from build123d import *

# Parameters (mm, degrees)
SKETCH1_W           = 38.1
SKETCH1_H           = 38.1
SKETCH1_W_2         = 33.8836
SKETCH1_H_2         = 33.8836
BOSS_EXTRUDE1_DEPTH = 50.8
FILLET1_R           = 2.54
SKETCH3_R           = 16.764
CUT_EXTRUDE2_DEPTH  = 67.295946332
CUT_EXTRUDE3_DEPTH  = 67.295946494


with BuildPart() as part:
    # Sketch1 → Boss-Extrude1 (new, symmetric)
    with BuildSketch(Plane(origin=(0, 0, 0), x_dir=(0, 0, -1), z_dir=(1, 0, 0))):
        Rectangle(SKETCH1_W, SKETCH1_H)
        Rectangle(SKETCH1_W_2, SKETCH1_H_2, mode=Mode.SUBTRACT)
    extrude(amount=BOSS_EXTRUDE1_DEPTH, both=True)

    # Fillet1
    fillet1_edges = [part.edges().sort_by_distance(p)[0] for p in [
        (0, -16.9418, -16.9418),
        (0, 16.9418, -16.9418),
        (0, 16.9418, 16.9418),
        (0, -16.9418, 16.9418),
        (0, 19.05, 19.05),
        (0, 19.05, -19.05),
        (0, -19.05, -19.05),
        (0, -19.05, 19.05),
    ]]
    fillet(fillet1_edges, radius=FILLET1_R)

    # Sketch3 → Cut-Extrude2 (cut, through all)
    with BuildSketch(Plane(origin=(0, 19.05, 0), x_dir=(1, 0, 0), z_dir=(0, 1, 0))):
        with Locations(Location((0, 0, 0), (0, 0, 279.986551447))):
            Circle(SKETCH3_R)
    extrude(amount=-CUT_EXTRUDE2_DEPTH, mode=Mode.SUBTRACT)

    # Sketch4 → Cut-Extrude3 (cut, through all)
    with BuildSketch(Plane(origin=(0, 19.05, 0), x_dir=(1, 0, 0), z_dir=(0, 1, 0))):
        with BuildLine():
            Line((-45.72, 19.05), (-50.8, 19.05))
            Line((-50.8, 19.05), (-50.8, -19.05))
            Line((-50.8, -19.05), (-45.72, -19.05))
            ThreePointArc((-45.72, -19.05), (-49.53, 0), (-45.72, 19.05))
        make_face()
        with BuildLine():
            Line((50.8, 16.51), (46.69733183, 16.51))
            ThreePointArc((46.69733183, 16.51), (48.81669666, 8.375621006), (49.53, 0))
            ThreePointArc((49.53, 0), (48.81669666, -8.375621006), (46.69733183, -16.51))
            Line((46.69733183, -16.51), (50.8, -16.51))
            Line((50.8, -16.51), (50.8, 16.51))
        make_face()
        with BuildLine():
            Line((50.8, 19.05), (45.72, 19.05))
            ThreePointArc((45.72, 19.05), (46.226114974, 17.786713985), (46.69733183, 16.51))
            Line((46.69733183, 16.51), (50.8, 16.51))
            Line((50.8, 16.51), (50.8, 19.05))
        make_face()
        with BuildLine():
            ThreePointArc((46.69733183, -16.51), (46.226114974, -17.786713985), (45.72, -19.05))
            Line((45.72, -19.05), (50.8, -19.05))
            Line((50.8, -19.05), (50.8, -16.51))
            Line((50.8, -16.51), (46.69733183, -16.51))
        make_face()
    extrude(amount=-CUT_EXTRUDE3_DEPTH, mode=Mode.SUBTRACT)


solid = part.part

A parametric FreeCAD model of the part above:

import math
import FreeCAD as App
import Part
import Sketcher
Q = App.Units.Quantity


def edges_at(feature, points):
    """Names of the edges that pass closest to the given points."""
    edges = feature.Shape.Edges
    near = lambda p: min(range(len(edges)), key=lambda i: edges[i].distToShape(Part.Vertex(*p))[0])
    return sorted({f"Edge{near(p) + 1}" for p in points})

doc = App.newDocument("Part")
body = doc.addObject("PartDesign::Body", "Body")

# Sketch on YZ plane
sketch1 = body.newObject("Sketcher::SketchObject", "Sketch")
sketch1.AttachmentSupport = (doc.getObject("YZ_Plane"), [""])
sketch1.MapMode = "FlatFace"
sketch1.addGeometry(Part.LineSegment(App.Vector(19, 19, 0), App.Vector(-19, 19, 0)), False)
sketch1.addGeometry(Part.LineSegment(App.Vector(-19, 19, 0), App.Vector(-19, -19, 0)), False)
sketch1.addGeometry(Part.LineSegment(App.Vector(-19, -19, 0), App.Vector(19, -19, 0)), False)
sketch1.addGeometry(Part.LineSegment(App.Vector(19, -19, 0), App.Vector(19, 19, 0)), False)
sketch1.addGeometry(Part.LineSegment(App.Vector(-17, -17, 0), App.Vector(-17, 17, 0)), False)
sketch1.addGeometry(Part.LineSegment(App.Vector(-17, 17, 0), App.Vector(17, 17, 0)), False)
sketch1.addGeometry(Part.LineSegment(App.Vector(17, 17, 0), App.Vector(17, -17, 0)), False)
sketch1.addGeometry(Part.LineSegment(App.Vector(17, -17, 0), App.Vector(-17, -17, 0)), False)
sketch1.addConstraint(Sketcher.Constraint("Coincident", 0, 2, 1, 1))
sketch1.addConstraint(Sketcher.Constraint("Coincident", 1, 2, 2, 1))
sketch1.addConstraint(Sketcher.Constraint("Coincident", 2, 2, 3, 1))
sketch1.addConstraint(Sketcher.Constraint("Coincident", 3, 2, 0, 1))
sketch1.addConstraint(Sketcher.Constraint("Coincident", 4, 2, 5, 1))
sketch1.addConstraint(Sketcher.Constraint("Coincident", 5, 2, 6, 1))
sketch1.addConstraint(Sketcher.Constraint("Coincident", 6, 2, 7, 1))
sketch1.addConstraint(Sketcher.Constraint("Coincident", 7, 2, 4, 1))
sketch1.addConstraint(Sketcher.Constraint("Horizontal", 0))
sketch1.addConstraint(Sketcher.Constraint("Vertical", 1))
sketch1.addConstraint(Sketcher.Constraint("Horizontal", 2))
sketch1.addConstraint(Sketcher.Constraint("Vertical", 3))
sketch1.addConstraint(Sketcher.Constraint("Vertical", 4))
sketch1.addConstraint(Sketcher.Constraint("Horizontal", 5))
sketch1.addConstraint(Sketcher.Constraint("Vertical", 6))
sketch1.addConstraint(Sketcher.Constraint("Horizontal", 7))
sketch1.addConstraint(Sketcher.Constraint("Symmetric", 0, 2, 2, 2, -1, 1))
sketch1.addConstraint(Sketcher.Constraint("Symmetric", 4, 2, 6, 2, -1, 1))
sketch1.addConstraint(Sketcher.Constraint("Equal", 2, 1))
sketch1.addConstraint(Sketcher.Constraint("Equal", 7, 4))
sketch1.addConstraint(Sketcher.Constraint("DistanceX", 0, 2, 0, 1, Q("1.5 in")))
sketch1.addConstraint(Sketcher.Constraint("DistanceX", 5, 1, 5, 2, Q("1.334 in")))
pad1 = body.newObject("PartDesign::Pad", "Pad")
pad1.Profile = sketch1
pad1.Length = Q("4 in")
pad1.Midplane = True
doc.recompute()

fillet = body.newObject("PartDesign::Fillet", "Fillet")
fillet.Base = (pad1, edges_at(pad1, [
    (0, -16.942, -16.942),
    (0, 16.942, -16.942),
    (0, 16.942, 16.942),
    (0, -16.942, 16.942),
    (0, 19.05, 19.05),
    (0, 19.05, -19.05),
    (0, -19.05, -19.05),
    (0, -19.05, 19.05),
]))
fillet.Radius = Q("0.1 in")

# Sketch on XZ plane
sketch2 = body.newObject("Sketcher::SketchObject", "Sketch001")
sketch2.AttachmentSupport = (doc.getObject("XZ_Plane"), [""])
sketch2.MapMode = "FlatFace"
sketch2.AttachmentOffset = App.Placement(App.Vector(0, 0, -0.75 * 25.4), App.Rotation())
sketch2.addGeometry(Part.Circle(App.Vector(0, 0, 0), App.Vector(0, 0, 1), 17), False)
sketch2.addConstraint(Sketcher.Constraint("Coincident", 0, 3, -1, 1))
sketch2.addConstraint(Sketcher.Constraint("Diameter", 0, Q("1.32 in")))
pocket1 = body.newObject("PartDesign::Pocket", "Pocket")
pocket1.Profile = sketch2
pocket1.Type = "ThroughAll"
pocket1.Reversed = True

# Sketch on XZ plane
sketch3 = body.newObject("Sketcher::SketchObject", "Sketch002")
sketch3.AttachmentSupport = (doc.getObject("XZ_Plane"), [""])
sketch3.MapMode = "FlatFace"
sketch3.AttachmentOffset = App.Placement(App.Vector(0, 0, -0.75 * 25.4), App.Rotation())
sketch3.addGeometry(Part.LineSegment(App.Vector(-45.7, -19.1, 0), App.Vector(-50.8, -19.1, 0)), False)
sketch3.addGeometry(Part.LineSegment(App.Vector(-50.8, -19.1, 0), App.Vector(-50.8, 19.1, 0)), False)
sketch3.addGeometry(Part.LineSegment(App.Vector(-50.8, 19.1, 0), App.Vector(-45.7, 19.1, 0)), False)
sketch3.addGeometry(Part.ArcOfCircle(Part.Circle(App.Vector(0, 0, 0), App.Vector(0, 0, 1), 49.5), math.radians(157), math.radians(203)), False)
sketch3.addGeometry(Part.ArcOfCircle(Part.Circle(App.Vector(0, 0, 0), App.Vector(0, 0, 1), 49.5), math.radians(-19.47), math.radians(0)), False)
sketch3.addGeometry(Part.ArcOfCircle(Part.Circle(App.Vector(0, 0, 0), App.Vector(0, 0, 1), 49.5), math.radians(0), math.radians(19.47)), False)
sketch3.addGeometry(Part.ArcOfCircle(Part.Circle(App.Vector(0, 0, 0), App.Vector(0, 0, 1), 49.5), math.radians(19.47), math.radians(22.62)), False)
sketch3.addGeometry(Part.LineSegment(App.Vector(45.7, 19.1, 0), App.Vector(50.8, 19.1, 0)), False)
sketch3.addGeometry(Part.LineSegment(App.Vector(50.8, 19.1, 0), App.Vector(50.8, -19.1, 0)), False)
sketch3.addGeometry(Part.LineSegment(App.Vector(50.8, -19.1, 0), App.Vector(45.7, -19.1, 0)), False)
sketch3.addGeometry(Part.ArcOfCircle(Part.Circle(App.Vector(0, 0, 0), App.Vector(0, 0, 1), 49.5), math.radians(-22.62), math.radians(-19.47)), False)
sketch3.addConstraint(Sketcher.Constraint("Coincident", 0, 2, 1, 1))
sketch3.addConstraint(Sketcher.Constraint("Coincident", 1, 2, 2, 1))
sketch3.addConstraint(Sketcher.Constraint("Coincident", 2, 2, 3, 1))
sketch3.addConstraint(Sketcher.Constraint("Coincident", 3, 2, 0, 1))
sketch3.addConstraint(Sketcher.Constraint("Tangent", 4, 2, 5, 1))
sketch3.addConstraint(Sketcher.Constraint("Tangent", 5, 2, 6, 1))
sketch3.addConstraint(Sketcher.Constraint("Coincident", 6, 2, 7, 1))
sketch3.addConstraint(Sketcher.Constraint("Coincident", 7, 2, 8, 1))
sketch3.addConstraint(Sketcher.Constraint("Coincident", 8, 2, 9, 1))
sketch3.addConstraint(Sketcher.Constraint("Coincident", 9, 2, 10, 1))
sketch3.addConstraint(Sketcher.Constraint("Tangent", 10, 2, 4, 1))
sketch3.addConstraint(Sketcher.Constraint("Horizontal", 0))
sketch3.addConstraint(Sketcher.Constraint("Vertical", 1))
sketch3.addConstraint(Sketcher.Constraint("Horizontal", 2))
sketch3.addConstraint(Sketcher.Constraint("Horizontal", 7))
sketch3.addConstraint(Sketcher.Constraint("Vertical", 8))
sketch3.addConstraint(Sketcher.Constraint("Horizontal", 9))
sketch3.addConstraint(Sketcher.Constraint("Coincident", 3, 3, -1, 1))
sketch3.addConstraint(Sketcher.Constraint("Coincident", 4, 3, -1, 1))
sketch3.addConstraint(Sketcher.Constraint("Coincident", 6, 3, -1, 1))
sketch3.addConstraint(Sketcher.Constraint("Equal", 3, 4))
sketch3.addConstraint(Sketcher.Constraint("Equal", 6, 10))
sketch3.addConstraint(Sketcher.Constraint("Symmetric", 0, 2, 7, 2, -1, 1))
sketch3.addConstraint(Sketcher.Constraint("PointOnObject", 4, 2, -1))
sketch3.addConstraint(Sketcher.Constraint("Horizontal", 2, 2, 6, 2))
sketch3.addConstraint(Sketcher.Constraint("Horizontal", 3, 2, 8, 2))
sketch3.addConstraint(Sketcher.Constraint("Vertical", 5, 2, 10, 2))
sketch3.addConstraint(Sketcher.Constraint("Radius", 3, Q("1.95 in")))
sketch3.addConstraint(Sketcher.Constraint("DistanceX", 0, 2, 0, 1, Q("0.2 in")))
sketch3.addConstraint(Sketcher.Constraint("DistanceY", 1, 1, 1, 2, Q("1.5 in")))
sketch3.addConstraint(Sketcher.Constraint("DistanceY", 5, 2, 6, 2, Q("0.1 in")))
pocket2 = body.newObject("PartDesign::Pocket", "Pocket001")
pocket2.Profile = sketch3
pocket2.Type = "ThroughAll"
pocket2.Reversed = True

doc.recompute()
